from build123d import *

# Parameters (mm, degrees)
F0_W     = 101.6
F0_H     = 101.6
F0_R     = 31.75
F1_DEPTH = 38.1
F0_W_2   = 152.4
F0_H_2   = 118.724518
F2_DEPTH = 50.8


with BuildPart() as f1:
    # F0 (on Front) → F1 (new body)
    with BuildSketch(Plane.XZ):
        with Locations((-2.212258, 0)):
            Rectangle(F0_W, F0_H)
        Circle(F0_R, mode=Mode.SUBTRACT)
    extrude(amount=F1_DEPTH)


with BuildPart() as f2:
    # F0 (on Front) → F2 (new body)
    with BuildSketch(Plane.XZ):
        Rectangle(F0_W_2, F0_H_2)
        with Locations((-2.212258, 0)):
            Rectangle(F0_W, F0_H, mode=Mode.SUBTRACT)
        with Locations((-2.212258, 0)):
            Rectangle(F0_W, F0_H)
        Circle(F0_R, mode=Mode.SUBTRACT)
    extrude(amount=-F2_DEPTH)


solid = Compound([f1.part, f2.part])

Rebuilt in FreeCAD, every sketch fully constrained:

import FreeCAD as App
import Part
import Sketcher
from FreeCAD import Vector
Q = App.Units.Quantity

doc = App.newDocument("Part")
params = doc.addObject("Spreadsheet::Sheet", "Params")
for row, (alias, value) in enumerate([
    ("sketch1_diameter", "2.5 in"),
    ("sketch1_width", "4 in"),
    ("pad1_length", "1.5 in"),
    ("sketch2_diameter", "2.5 in"),
    ("sketch2_width", "6 in"),
    ("pad2_length", "2 in"),
], start=1):
    params.set(f"A{row}", alias)
    params.set(f"B{row}", "=" + value)
    params.setAlias(f"B{row}", alias)

body = doc.addObject("PartDesign::Body", "Body")

# Sketch on XZ plane
sketch1 = doc.addObject("Sketcher::SketchObject", "Sketch")
body.addObject(sketch1)
sketch1.AttachmentSupport = (doc.XZ_Plane, [""])
sketch1.MapMode = "FlatFace"
sketch1.addGeometry([
    Part.LineSegment(Vector(-53.012258, 50.8, 0), Vector(-53.012258, -50.8, 0)),  # 0
    Part.LineSegment(Vector(-53.012258, -50.8, 0), Vector(48.587742, -50.8, 0)),  # 1
    Part.LineSegment(Vector(48.587742, -50.8, 0), Vector(48.587742, 50.8, 0)),  # 2
    Part.LineSegment(Vector(48.587742, 50.8, 0), Vector(-53.012258, 50.8, 0)),  # 3
    Part.Circle(Vector(0, 0, 0), Vector(0, 0, 1), 31.75),  # 4
], False)
sketch1.addConstraint([
    Sketcher.Constraint("Coincident", 0, 2, 1, 1),
    Sketcher.Constraint("Coincident", 1, 2, 2, 1),
    Sketcher.Constraint("Coincident", 2, 2, 3, 1),
    Sketcher.Constraint("Coincident", 3, 2, 0, 1),
    Sketcher.Constraint("Vertical", 0),
    Sketcher.Constraint("Horizontal", 1),
    Sketcher.Constraint("Vertical", 2),
    Sketcher.Constraint("Horizontal", 3),
    Sketcher.Constraint("Coincident", 4, 3, -1, 1),
    Sketcher.Constraint("Equal", 3, 0),
    Sketcher.Constraint("Diameter", 4, Q("2.5 in")),
    Sketcher.Constraint("DistanceX", 1, 1, 1, 2, Q("4 in")),
    Sketcher.Constraint("DistanceY", 0, 2, -1, 1, Q("2 in")),
    Sketcher.Constraint("DistanceX", 0, 2, -1, 1, Q("53.012258 mm")),
])
sketch1.setExpression("Constraints[10]", "Params.sketch1_diameter")
sketch1.setExpression("Constraints[11]", "Params.sketch1_width")
pad1 = doc.addObject("PartDesign::Pad", "Pad")
body.addObject(pad1)
pad1.Profile = sketch1
pad1.setExpression("Length", "Params.pad1_length")
body2 = doc.addObject("PartDesign::Body", "Body001")

# Sketch on XZ plane
sketch2 = doc.addObject("Sketcher::SketchObject", "Sketch001")
body2.addObject(sketch2)
sketch2.AttachmentSupport = (doc.getObject("XZ_Plane001"), [""])
sketch2.MapMode = "FlatFace"
sketch2.addGeometry([
    Part.LineSegment(Vector(-76.2, 59.362259, 0), Vector(-76.2, -59.362259, 0)),  # 0
    Part.LineSegment(Vector(-76.2, -59.362259, 0), Vector(76.2, -59.362259, 0)),  # 1
    Part.LineSegment(Vector(76.2, -59.362259, 0), Vector(76.2, 59.362259, 0)),  # 2
    Part.LineSegment(Vector(76.2, 59.362259, 0), Vector(-76.2, 59.362259, 0)),  # 3
    Part.Circle(Vector(0, 0, 0), Vector(0, 0, 1), 31.75),  # 4
], False)
sketch2.addConstraint([
    Sketcher.Constraint("Coincident", 0, 2, 1, 1),
    Sketcher.Constraint("Coincident", 1, 2, 2, 1),
    Sketcher.Constraint("Coincident", 2, 2, 3, 1),
    Sketcher.Constraint("Coincident", 3, 2, 0, 1),
    Sketcher.Constraint("Vertical", 0),
    Sketcher.Constraint("Horizontal", 1),
    Sketcher.Constraint("Vertical", 2),
    Sketcher.Constraint("Horizontal", 3),
    Sketcher.Constraint("Coincident", 4, 3, -1, 1),
    Sketcher.Constraint("Symmetric", 0, 2, 2, 2, -1, 1),
    Sketcher.Constraint("Diameter", 4, Q("2.5 in")),
    Sketcher.Constraint("DistanceX", 1, 1, 1, 2, Q("6 in")),
    Sketcher.Constraint("DistanceY", 0, 2, 0, 1, Q("118.724518 mm")),
])
sketch2.setExpression("Constraints[10]", "Params.sketch2_diameter")
sketch2.setExpression("Constraints[11]", "Params.sketch2_width")
pad2 = doc.addObject("PartDesign::Pad", "Pad001")
body2.addObject(pad2)
pad2.Profile = sketch2
pad2.setExpression("Length", "Params.pad2_length")
pad2.Reversed = True

doc.recompute()
